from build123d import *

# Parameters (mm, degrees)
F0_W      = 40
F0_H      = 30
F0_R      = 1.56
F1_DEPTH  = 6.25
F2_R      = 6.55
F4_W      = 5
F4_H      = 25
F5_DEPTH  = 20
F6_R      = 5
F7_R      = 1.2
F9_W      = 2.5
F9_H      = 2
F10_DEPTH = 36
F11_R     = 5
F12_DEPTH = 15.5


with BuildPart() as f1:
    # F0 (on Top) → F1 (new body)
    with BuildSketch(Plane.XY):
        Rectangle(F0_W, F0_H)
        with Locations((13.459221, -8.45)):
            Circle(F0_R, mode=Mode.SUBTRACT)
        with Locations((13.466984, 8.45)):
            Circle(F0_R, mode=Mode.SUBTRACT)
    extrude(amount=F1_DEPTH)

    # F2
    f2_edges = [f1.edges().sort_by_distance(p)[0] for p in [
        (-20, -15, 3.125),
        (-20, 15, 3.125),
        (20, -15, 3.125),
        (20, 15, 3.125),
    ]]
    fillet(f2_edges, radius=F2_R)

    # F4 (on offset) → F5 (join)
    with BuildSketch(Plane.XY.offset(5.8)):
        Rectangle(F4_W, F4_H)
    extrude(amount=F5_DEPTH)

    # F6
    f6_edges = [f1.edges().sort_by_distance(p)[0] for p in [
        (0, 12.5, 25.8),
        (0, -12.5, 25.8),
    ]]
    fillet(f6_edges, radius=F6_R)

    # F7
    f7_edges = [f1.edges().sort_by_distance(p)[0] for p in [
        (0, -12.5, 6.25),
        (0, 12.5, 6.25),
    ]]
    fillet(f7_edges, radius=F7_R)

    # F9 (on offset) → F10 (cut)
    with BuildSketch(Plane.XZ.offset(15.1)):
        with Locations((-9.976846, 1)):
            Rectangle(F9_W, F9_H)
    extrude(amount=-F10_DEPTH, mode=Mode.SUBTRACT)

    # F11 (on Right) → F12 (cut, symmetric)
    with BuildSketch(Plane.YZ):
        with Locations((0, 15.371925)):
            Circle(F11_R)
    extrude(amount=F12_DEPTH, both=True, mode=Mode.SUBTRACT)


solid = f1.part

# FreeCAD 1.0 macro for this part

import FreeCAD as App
import Part
import Sketcher


def edges_at(feature, points):
    """Names of the edges that pass closest to the given points."""
    edges = feature.Shape.Edges
    near = lambda p: min(range(len(edges)), key=lambda i: edges[i].distToShape(Part.Vertex(*p))[0])
    return sorted({f"Edge{near(p) + 1}" for p in points})

doc = App.newDocument("Part")
params = doc.addObject("Spreadsheet::Sheet", "Params")
for row, (alias, value) in enumerate([
    ("sketch1_diameter", "3.12 mm"),
    ("sketch1_width", "40 mm"),
    ("sketch1_height", "30 mm"),
    ("pad1_length", "6.25 mm"),
    ("fillet_radius", "6.55 mm"),
    ("sketch2_width", "5 mm"),
    ("sketch2_height", "25 mm"),
    ("pad2_length", "20 mm"),
    ("fillet2_radius", "5 mm"),
    ("fillet3_radius", "1.2 mm"),
    ("sketch3_height", "2 mm"),
    ("sketch3_width", "2.5 mm"),
    ("pocket1_length", "36 mm"),
    ("sketch4_diameter", "10 mm"),
    ("pocket2_length", "31 mm"),
], start=1):
    params.set(f"A{row}", alias)
    params.set(f"B{row}", "=" + value)
    params.setAlias(f"B{row}", alias)

body = doc.addObject("PartDesign::Body", "Body")

# Sketch on XY plane
sketch1 = body.newObject("Sketcher::SketchObject", "Sketch")
sketch1.AttachmentSupport = (doc.getObject("XY_Plane"), [""])
sketch1.MapMode = "FlatFace"
sketch1.addGeometry([
    Part.LineSegment(App.Vector(-20, 15, 0), App.Vector(-20, -15, 0)),  # 0
    Part.LineSegment(App.Vector(-20, -15, 0), App.Vector(20, -15, 0)),  # 1
    Part.LineSegment(App.Vector(20, -15, 0), App.Vector(20, 15, 0)),  # 2
    Part.LineSegment(App.Vector(20, 15, 0), App.Vector(-20, 15, 0)),  # 3
    Part.Circle(App.Vector(13.5, -8.4, 0), App.Vector(0, 0, 1), 1.6),  # 4
    Part.Circle(App.Vector(13.5, 8.4, 0), App.Vector(0, 0, 1), 1.6),  # 5
], False)
sketch1.addConstraint([
    Sketcher.Constraint("Coincident", 0, 2, 1, 1),
    Sketcher.Constraint("Coincident", 1, 2, 2, 1),
    Sketcher.Constraint("Coincident", 2, 2, 3, 1),
    Sketcher.Constraint("Coincident", 3, 2, 0, 1),
    Sketcher.Constraint("Vertical", 0),
    Sketcher.Constraint("Horizontal", 1),
    Sketcher.Constraint("Vertical", 2),
    Sketcher.Constraint("Horizontal", 3),
    Sketcher.Constraint("Equal", 4, 5),
    Sketcher.Constraint("Symmetric", 0, 2, 2, 2, -1, 1),
    Sketcher.Constraint("Diameter", 4, 3.12),
    Sketcher.Constraint("DistanceX", 1, 1, 1, 2, 40.0),
    Sketcher.Constraint("DistanceY", 0, 2, 0, 1, 30.0),
    Sketcher.Constraint("DistanceY", 4, 3, 5, 3, 16.9),
    Sketcher.Constraint("DistanceY", 4, 3, -1, 1, 8.45),
    Sketcher.Constraint("DistanceX", -1, 1, 4, 3, 13.459221),
    Sketcher.Constraint("DistanceX", -1, 1, 5, 3, 13.466984),
])
sketch1.setExpression("Constraints[10]", "Params.sketch1_diameter")
sketch1.setExpression("Constraints[11]", "Params.sketch1_width")
sketch1.setExpression("Constraints[12]", "Params.sketch1_height")
pad1 = body.newObject("PartDesign::Pad", "Pad")
pad1.Profile = sketch1
pad1.setExpression("Length", "Params.pad1_length")
doc.recompute()

fillet = body.newObject("PartDesign::Fillet", "Fillet")
fillet.Base = (pad1, edges_at(pad1, [
    (-20, -15, 3.125),
    (-20, 15, 3.125),
    (20, -15, 3.125),
    (20, 15, 3.125),
]))
fillet.setExpression("Radius", "Params.fillet_radius")

# Sketch on XY plane
sketch2 = body.newObject("Sketcher::SketchObject", "Sketch001")
sketch2.AttachmentSupport = (doc.getObject("XY_Plane"), [""])
sketch2.MapMode = "FlatFace"
sketch2.AttachmentOffset = App.Placement(App.Vector(0, 0, 5.8), App.Rotation())
sketch2.addGeometry([
    Part.LineSegment(App.Vector(-2, 12, 0), App.Vector(-2, -12, 0)),
    Part.LineSegment(App.Vector(-2, -12, 0), App.Vector(2, -12, 0)),
    Part.LineSegment(App.Vector(2, -12, 0), App.Vector(2, 12, 0)),
    Part.LineSegment(App.Vector(2, 12, 0), App.Vector(-2, 12, 0)),
], False)
sketch2.addConstraint([
    Sketcher.Constraint("Coincident", 0, 2, 1, 1),
    Sketcher.Constraint("Coincident", 1, 2, 2, 1),
    Sketcher.Constraint("Coincident", 2, 2, 3, 1),
    Sketcher.Constraint("Coincident", 3, 2, 0, 1),
    Sketcher.Constraint("Vertical", 0),
    Sketcher.Constraint("Horizontal", 1),
    Sketcher.Constraint("Vertical", 2),
    Sketcher.Constraint("Horizontal", 3),
    Sketcher.Constraint("Symmetric", 0, 2, 2, 2, -1, 1),
    Sketcher.Constraint("DistanceX", 1, 1, 1, 2, 5.0),
    Sketcher.Constraint("DistanceY", 0, 2, 0, 1, 25.0),
])
sketch2.setExpression("Constraints[9]", "Params.sketch2_width")
sketch2.setExpression("Constraints[10]", "Params.sketch2_height")
pad2 = body.newObject("PartDesign::Pad", "Pad001")
pad2.Profile = sketch2
pad2.setExpression("Length", "Params.pad2_length")
doc.recompute()

fillet2 = body.newObject("PartDesign::Fillet", "Fillet001")
fillet2.Base = (pad2, edges_at(pad2, [(0, 12.5, 25.8), (0, -12.5, 25.8)]))
fillet2.setExpression("Radius", "Params.fillet2_radius")
doc.recompute()

fillet3 = body.newObject("PartDesign::Fillet", "Fillet002")
fillet3.Base = (fillet2, edges_at(fillet2, [(0, -12.5, 6.25), (0, 12.5, 6.25)]))
fillet3.setExpression("Radius", "Params.fillet3_radius")

# Sketch on XZ plane
sketch3 = body.newObject("Sketcher::SketchObject", "Sketch002")
sketch3.AttachmentSupport = (doc.getObject("XZ_Plane"), [""])
sketch3.MapMode = "FlatFace"
sketch3.AttachmentOffset = App.Placement(App.Vector(0, 0, 15.1), App.Rotation())
sketch3.addGeometry([
    Part.LineSegment(App.Vector(-11.2, 2, 0), App.Vector(-11.2, 0, 0)),
    Part.LineSegment(App.Vector(-11.2, 0, 0), App.Vector(-8.7, 0, 0)),
    Part.LineSegment(App.Vector(-8.7, 0, 0), App.Vector(-8.7, 2, 0)),
    Part.LineSegment(App.Vector(-8.7, 2, 0), App.Vector(-11.2, 2, 0)),
], False)
sketch3.addConstraint([
    Sketcher.Constraint("Coincident", 0, 2, 1, 1),
    Sketcher.Constraint("Coincident", 1, 2, 2, 1),
    Sketcher.Constraint("Coincident", 2, 2, 3, 1),
    Sketcher.Constraint("Coincident", 3, 2, 0, 1),
    Sketcher.Constraint("Vertical", 0),
    Sketcher.Constraint("Horizontal", 1),
    Sketcher.Constraint("Vertical", 2),
    Sketcher.Constraint("Horizontal", 3),
    Sketcher.Constraint("PointOnObject", 0, 2, -1),
    Sketcher.Constraint("DistanceY", 0, 2, 0, 1, 2.0),
    Sketcher.Constraint("DistanceX", 1, 1, 1, 2, 2.5),
    Sketcher.Constraint("DistanceX", 0, 2, -1, 1, 11.226846),
])
sketch3.setExpression("Constraints[9]", "Params.sketch3_height")
sketch3.setExpression("Constraints[10]", "Params.sketch3_width")
pocket1 = body.newObject("PartDesign::Pocket", "Pocket")
pocket1.Profile = sketch3
pocket1.setExpression("Length", "Params.pocket1_length")

# Sketch on YZ plane
sketch4 = body.newObject("Sketcher::SketchObject", "Sketch003")
sketch4.AttachmentSupport = (doc.getObject("YZ_Plane"), [""])
sketch4.MapMode = "FlatFace"
sketch4.addGeometry(Part.Circle(App.Vector(0, 15, 0), App.Vector(0, 0, 1), 5), False)
sketch4.addConstraint([
    Sketcher.Constraint("PointOnObject", 0, 3, -2),
    Sketcher.Constraint("Diameter", 0, 10.0),
    Sketcher.Constraint("DistanceY", -1, 1, 0, 3, 15.371925),
])
sketch4.setExpression("Constraints[1]", "Params.sketch4_diameter")
pocket2 = body.newObject("PartDesign::Pocket", "Pocket001")
pocket2.Profile = sketch4
pocket2.setExpression("Length", "Params.pocket2_length")
pocket2.Midplane = True

doc.recompute()
